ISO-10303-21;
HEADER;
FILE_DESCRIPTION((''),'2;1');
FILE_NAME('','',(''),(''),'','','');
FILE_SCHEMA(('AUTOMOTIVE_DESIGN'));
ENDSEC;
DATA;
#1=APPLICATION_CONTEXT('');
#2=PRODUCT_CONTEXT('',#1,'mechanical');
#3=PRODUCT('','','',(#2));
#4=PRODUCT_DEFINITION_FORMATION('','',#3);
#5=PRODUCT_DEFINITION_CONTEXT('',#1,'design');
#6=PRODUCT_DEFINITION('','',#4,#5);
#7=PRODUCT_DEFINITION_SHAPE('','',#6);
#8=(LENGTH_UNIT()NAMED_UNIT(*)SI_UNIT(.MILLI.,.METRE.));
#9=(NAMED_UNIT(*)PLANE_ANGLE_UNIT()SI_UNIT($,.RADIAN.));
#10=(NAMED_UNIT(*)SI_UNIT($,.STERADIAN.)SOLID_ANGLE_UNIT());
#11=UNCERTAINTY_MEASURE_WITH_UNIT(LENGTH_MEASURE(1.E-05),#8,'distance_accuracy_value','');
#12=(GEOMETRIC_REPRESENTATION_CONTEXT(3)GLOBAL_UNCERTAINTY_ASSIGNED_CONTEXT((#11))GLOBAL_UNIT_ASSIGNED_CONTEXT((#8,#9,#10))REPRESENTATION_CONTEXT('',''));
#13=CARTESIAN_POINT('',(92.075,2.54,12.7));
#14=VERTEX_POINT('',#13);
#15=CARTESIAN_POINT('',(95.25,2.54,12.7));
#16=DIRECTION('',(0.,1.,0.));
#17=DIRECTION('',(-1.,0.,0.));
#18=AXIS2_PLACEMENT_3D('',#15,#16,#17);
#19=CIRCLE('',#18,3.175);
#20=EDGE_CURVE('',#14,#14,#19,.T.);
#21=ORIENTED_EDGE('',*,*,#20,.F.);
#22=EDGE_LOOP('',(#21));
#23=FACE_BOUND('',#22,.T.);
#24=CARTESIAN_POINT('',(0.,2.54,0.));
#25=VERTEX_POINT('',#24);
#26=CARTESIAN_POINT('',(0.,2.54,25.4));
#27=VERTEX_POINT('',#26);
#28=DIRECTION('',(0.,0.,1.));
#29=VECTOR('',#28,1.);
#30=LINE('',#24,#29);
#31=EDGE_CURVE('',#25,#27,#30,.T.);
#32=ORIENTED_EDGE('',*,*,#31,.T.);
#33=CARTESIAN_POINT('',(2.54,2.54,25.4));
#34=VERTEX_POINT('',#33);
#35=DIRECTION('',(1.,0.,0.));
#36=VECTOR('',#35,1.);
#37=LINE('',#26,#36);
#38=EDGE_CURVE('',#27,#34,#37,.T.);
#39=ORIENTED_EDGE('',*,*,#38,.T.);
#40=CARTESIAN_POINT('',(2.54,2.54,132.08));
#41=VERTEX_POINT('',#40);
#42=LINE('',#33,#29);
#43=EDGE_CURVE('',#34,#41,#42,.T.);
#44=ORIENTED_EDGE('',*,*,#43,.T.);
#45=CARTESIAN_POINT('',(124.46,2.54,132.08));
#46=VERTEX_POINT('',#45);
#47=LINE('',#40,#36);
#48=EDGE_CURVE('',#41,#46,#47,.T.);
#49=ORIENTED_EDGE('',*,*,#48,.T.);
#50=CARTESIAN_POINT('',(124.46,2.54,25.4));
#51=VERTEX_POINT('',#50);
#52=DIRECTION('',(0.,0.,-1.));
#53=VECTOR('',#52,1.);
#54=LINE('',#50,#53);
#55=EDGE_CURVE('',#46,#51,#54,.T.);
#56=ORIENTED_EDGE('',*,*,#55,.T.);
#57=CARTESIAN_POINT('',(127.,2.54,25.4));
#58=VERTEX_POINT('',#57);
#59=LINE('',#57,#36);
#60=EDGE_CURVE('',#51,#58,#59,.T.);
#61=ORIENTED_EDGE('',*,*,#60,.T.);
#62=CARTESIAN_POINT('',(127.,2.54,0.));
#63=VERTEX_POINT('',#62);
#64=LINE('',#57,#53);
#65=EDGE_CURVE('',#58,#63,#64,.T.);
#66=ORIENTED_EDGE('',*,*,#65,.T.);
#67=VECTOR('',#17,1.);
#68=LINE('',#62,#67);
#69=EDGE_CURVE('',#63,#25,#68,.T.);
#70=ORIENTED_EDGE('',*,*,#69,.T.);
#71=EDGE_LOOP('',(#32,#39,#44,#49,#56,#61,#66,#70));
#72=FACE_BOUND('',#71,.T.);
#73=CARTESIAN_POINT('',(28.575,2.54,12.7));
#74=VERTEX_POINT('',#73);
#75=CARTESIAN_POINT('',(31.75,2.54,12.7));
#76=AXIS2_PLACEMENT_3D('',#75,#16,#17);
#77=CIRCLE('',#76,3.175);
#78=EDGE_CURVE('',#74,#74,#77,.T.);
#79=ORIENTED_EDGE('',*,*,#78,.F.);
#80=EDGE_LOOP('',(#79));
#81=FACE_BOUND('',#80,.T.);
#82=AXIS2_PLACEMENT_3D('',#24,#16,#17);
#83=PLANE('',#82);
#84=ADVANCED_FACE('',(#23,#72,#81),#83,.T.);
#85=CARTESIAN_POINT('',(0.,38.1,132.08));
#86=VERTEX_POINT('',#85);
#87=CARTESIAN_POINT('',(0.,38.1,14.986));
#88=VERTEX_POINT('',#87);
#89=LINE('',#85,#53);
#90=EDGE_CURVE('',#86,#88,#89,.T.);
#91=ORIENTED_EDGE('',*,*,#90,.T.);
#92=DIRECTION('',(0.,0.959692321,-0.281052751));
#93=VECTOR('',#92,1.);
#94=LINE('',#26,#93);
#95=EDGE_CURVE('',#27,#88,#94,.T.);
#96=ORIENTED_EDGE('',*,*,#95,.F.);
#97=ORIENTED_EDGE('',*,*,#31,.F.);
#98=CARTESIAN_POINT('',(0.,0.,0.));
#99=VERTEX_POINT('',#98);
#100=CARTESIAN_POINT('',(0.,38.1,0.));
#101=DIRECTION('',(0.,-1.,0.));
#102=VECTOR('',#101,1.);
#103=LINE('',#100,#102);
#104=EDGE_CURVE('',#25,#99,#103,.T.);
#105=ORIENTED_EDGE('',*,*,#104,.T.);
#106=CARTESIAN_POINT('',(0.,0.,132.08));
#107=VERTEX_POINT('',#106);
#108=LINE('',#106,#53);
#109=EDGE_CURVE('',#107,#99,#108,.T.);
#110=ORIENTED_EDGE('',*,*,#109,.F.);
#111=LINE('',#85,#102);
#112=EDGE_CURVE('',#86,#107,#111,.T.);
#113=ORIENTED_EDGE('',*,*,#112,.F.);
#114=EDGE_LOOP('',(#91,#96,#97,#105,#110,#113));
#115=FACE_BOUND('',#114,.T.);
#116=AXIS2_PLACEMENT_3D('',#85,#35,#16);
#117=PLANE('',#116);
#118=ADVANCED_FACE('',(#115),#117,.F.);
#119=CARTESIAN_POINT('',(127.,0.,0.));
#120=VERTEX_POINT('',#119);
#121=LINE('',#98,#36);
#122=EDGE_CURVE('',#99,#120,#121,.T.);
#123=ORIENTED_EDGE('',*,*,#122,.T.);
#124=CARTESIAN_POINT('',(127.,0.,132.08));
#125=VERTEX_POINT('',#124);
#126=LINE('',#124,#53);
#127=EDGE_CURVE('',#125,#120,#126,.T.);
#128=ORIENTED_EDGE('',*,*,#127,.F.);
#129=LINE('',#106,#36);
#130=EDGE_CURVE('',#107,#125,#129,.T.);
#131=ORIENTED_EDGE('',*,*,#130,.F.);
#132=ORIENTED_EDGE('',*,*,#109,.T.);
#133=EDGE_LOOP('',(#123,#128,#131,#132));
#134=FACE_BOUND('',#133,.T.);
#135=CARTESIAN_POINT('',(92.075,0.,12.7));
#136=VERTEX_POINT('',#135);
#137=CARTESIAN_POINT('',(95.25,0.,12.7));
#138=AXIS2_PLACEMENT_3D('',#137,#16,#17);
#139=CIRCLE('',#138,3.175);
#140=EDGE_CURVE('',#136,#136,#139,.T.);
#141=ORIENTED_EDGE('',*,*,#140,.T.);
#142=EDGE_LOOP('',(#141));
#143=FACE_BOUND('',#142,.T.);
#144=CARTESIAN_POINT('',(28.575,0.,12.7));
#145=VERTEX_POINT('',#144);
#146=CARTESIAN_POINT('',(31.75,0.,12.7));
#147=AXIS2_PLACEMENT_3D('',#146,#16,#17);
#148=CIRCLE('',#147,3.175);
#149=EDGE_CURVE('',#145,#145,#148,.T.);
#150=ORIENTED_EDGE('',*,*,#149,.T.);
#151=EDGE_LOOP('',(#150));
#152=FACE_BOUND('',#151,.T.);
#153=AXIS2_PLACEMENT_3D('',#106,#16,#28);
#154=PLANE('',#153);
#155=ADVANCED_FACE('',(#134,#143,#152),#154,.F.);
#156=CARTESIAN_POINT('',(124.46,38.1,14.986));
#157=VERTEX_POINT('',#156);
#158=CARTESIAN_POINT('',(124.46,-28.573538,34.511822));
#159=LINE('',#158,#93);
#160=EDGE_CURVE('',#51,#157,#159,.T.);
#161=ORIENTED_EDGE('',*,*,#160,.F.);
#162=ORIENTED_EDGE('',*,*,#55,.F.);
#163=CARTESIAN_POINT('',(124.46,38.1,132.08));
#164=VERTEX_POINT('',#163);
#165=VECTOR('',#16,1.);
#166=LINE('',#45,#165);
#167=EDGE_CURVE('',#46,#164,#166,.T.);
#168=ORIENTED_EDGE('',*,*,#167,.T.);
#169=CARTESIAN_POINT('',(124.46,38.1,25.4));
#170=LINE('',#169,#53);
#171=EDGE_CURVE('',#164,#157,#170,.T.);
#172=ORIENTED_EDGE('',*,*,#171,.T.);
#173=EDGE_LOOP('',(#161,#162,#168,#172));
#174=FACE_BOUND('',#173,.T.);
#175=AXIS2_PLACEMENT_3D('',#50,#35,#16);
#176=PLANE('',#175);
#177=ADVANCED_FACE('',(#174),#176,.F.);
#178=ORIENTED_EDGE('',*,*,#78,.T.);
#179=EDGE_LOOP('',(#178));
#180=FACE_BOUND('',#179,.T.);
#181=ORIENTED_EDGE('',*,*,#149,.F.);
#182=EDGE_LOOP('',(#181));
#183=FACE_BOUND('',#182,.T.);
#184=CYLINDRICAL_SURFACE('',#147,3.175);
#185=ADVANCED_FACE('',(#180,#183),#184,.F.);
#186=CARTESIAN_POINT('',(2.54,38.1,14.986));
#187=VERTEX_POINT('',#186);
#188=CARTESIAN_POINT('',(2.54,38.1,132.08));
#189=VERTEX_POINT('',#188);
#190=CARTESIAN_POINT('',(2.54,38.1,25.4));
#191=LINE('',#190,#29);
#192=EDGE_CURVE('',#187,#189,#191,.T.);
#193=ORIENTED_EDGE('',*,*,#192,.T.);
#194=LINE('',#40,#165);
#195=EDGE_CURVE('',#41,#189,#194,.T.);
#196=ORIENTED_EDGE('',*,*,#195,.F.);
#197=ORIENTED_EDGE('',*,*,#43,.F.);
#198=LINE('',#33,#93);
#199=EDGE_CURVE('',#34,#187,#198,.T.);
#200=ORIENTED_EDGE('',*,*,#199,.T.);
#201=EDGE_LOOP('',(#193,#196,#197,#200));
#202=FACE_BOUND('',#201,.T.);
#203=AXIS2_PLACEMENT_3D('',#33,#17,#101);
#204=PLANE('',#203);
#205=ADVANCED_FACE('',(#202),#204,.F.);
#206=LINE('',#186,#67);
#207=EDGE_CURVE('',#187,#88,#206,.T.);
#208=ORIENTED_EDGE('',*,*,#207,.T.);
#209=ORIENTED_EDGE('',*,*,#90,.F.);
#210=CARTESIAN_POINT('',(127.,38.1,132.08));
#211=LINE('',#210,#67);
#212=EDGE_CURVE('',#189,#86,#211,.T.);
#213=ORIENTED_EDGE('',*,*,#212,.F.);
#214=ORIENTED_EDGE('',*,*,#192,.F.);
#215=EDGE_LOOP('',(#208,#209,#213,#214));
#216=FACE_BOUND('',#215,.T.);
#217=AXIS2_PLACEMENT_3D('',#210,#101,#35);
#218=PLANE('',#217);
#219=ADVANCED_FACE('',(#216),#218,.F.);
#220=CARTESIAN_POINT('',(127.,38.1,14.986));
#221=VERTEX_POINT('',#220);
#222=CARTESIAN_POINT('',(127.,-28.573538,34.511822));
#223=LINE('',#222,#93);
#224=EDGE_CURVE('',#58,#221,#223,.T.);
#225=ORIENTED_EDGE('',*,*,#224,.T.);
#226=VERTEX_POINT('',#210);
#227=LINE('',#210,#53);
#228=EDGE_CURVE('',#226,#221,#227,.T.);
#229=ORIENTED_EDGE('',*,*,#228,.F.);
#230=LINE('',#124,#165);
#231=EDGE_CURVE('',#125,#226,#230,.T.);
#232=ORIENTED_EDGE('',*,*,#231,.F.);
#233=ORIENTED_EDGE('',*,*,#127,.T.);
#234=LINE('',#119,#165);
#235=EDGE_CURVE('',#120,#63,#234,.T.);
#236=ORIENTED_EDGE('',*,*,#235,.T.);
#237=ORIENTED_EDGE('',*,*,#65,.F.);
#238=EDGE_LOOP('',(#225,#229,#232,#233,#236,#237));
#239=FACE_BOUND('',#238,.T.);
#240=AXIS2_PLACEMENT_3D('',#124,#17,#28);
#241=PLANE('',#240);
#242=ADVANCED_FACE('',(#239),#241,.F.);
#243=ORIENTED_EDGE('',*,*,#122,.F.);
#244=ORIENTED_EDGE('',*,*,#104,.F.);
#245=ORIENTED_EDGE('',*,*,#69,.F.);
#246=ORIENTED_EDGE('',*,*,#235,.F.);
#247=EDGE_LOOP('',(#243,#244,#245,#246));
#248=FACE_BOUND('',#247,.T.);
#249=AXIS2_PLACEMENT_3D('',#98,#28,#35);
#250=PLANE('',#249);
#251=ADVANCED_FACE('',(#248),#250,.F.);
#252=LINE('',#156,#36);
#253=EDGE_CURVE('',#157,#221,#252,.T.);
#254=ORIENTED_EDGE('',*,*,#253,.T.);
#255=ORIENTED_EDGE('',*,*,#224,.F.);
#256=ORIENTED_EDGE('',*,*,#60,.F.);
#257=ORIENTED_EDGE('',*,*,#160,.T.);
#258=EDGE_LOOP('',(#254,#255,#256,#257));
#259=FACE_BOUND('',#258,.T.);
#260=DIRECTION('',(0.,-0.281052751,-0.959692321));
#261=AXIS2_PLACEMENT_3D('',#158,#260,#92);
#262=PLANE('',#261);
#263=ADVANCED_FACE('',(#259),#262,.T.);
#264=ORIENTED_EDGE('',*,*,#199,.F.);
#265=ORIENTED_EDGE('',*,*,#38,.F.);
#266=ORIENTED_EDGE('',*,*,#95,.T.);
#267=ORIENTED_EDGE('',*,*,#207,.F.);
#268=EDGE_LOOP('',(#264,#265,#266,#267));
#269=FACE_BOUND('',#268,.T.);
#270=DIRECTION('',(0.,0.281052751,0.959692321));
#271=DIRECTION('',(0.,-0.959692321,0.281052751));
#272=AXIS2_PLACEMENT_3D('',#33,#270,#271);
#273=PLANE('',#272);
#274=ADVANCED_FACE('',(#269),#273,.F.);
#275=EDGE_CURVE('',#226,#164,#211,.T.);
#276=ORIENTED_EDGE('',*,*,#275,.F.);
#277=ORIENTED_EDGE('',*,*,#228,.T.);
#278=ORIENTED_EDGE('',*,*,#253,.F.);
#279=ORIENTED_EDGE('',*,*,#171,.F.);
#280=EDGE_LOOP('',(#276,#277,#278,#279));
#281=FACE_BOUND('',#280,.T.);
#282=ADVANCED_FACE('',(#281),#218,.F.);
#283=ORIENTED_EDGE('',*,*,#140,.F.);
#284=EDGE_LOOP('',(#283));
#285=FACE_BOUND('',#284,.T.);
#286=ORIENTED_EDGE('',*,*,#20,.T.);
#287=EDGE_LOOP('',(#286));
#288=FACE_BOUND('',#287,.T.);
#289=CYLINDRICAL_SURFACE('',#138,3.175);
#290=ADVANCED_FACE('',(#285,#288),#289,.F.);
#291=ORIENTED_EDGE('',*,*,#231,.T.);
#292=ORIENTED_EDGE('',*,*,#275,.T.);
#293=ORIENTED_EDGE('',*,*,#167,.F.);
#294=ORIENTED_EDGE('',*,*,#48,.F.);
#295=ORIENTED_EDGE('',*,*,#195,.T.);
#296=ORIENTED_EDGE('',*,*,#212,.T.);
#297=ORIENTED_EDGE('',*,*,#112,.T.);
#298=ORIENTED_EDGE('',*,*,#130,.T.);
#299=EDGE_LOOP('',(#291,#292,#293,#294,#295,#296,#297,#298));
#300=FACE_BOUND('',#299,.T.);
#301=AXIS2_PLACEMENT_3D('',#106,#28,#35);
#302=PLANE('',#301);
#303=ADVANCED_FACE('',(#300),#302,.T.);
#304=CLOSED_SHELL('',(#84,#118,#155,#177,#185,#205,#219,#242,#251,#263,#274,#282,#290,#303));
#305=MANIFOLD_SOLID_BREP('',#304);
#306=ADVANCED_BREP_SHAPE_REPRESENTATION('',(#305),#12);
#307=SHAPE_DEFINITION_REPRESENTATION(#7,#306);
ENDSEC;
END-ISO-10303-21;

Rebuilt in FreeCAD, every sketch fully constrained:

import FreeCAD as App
import Part
import Sketcher

V = App.Vector
Q = App.Units.Quantity

doc = App.newDocument("Part")
body = doc.addObject("PartDesign::Body", "Body")

# Sketch on XY plane
sketch1 = body.newObject("Sketcher::SketchObject", "Sketch")
sketch1.AttachmentSupport = (doc.getObject("XY_Plane"), [""])
sketch1.MapMode = "FlatFace"
sketch1.addGeometry(Part.LineSegment(V(0, 38.1, 0), V(0, 0, 0)), False)
sketch1.addGeometry(Part.LineSegment(V(0, 0, 0), V(127, 0, 0)), False)
sketch1.addGeometry(Part.LineSegment(V(127, 0, 0), V(127, 38.1, 0)), False)
sketch1.addGeometry(Part.LineSegment(V(127, 38.1, 0), V(0, 38.1, 0)), False)
sketch1.addConstraint(Sketcher.Constraint("Coincident", 0, 2, 1, 1))
sketch1.addConstraint(Sketcher.Constraint("Coincident", 1, 2, 2, 1))
sketch1.addConstraint(Sketcher.Constraint("Coincident", 2, 2, 3, 1))
sketch1.addConstraint(Sketcher.Constraint("Coincident", 3, 2, 0, 1))
sketch1.addConstraint(Sketcher.Constraint("Vertical", 0))
sketch1.addConstraint(Sketcher.Constraint("Horizontal", 1))
sketch1.addConstraint(Sketcher.Constraint("Vertical", 2))
sketch1.addConstraint(Sketcher.Constraint("Horizontal", 3))
sketch1.addConstraint(Sketcher.Constraint("Coincident", 0, 2, -1, 1))
sketch1.addConstraint(Sketcher.Constraint("DistanceX", 1, 1, 1, 2, Q("5 in")))
sketch1.addConstraint(Sketcher.Constraint("DistanceY", 0, 2, 0, 1, Q("1.5 in")))
pad1 = body.newObject("PartDesign::Pad", "Pad")
pad1.Profile = sketch1
pad1.Length = Q("5.2 in")

# Sketch on XZ plane
sketch2 = body.newObject("Sketcher::SketchObject", "Sketch001")
sketch2.AttachmentSupport = (doc.getObject("XZ_Plane"), [""])
sketch2.MapMode = "FlatFace"
sketch2.AttachmentOffset = App.Placement(V(0, 0, -1.5 * 25.4), App.Rotation())
sketch2.addGeometry(Part.LineSegment(V(0, 25.4, 0), V(2.54, 25.4, 0)), False)
sketch2.addGeometry(Part.LineSegment(V(2.54, 25.4, 0), V(2.54, 132.08, 0)), False)
sketch2.addGeometry(Part.LineSegment(V(2.54, 132.08, 0), V(124.46, 132.08, 0)), False)
sketch2.addGeometry(Part.LineSegment(V(124.46, 132.08, 0), V(124.46, 25.4, 0)), False)
sketch2.addGeometry(Part.LineSegment(V(124.46, 25.4, 0), V(127, 25.4, 0)), False)
sketch2.addGeometry(Part.LineSegment(V(127, 25.4, 0), V(127, 0, 0)), False)
sketch2.addGeometry(Part.LineSegment(V(127, 0, 0), V(0, 0, 0)), False)
sketch2.addGeometry(Part.LineSegment(V(0, 0, 0), V(0, 25.4, 0)), False)
sketch2.addConstraint(Sketcher.Constraint("Coincident", 0, 2, 1, 1))
sketch2.addConstraint(Sketcher.Constraint("Coincident", 1, 2, 2, 1))
sketch2.addConstraint(Sketcher.Constraint("Coincident", 2, 2, 3, 1))
sketch2.addConstraint(Sketcher.Constraint("Coincident", 3, 2, 4, 1))
sketch2.addConstraint(Sketcher.Constraint("Coincident", 4, 2, 5, 1))
sketch2.addConstraint(Sketcher.Constraint("Coincident", 5, 2, 6, 1))
sketch2.addConstraint(Sketcher.Constraint("Coincident", 6, 2, 7, 1))
sketch2.addConstraint(Sketcher.Constraint("Coincident", 7, 2, 0, 1))
sketch2.addConstraint(Sketcher.Constraint("Horizontal", 0))
sketch2.addConstraint(Sketcher.Constraint("Vertical", 1))
sketch2.addConstraint(Sketcher.Constraint("Horizontal", 2))
sketch2.addConstraint(Sketcher.Constraint("Vertical", 3))
sketch2.addConstraint(Sketcher.Constraint("Horizontal", 4))
sketch2.addConstraint(Sketcher.Constraint("Vertical", 5))
sketch2.addConstraint(Sketcher.Constraint("Horizontal", 6))
sketch2.addConstraint(Sketcher.Constraint("Vertical", 7))
sketch2.addConstraint(Sketcher.Constraint("Coincident", 6, 2, -1, 1))
sketch2.addConstraint(Sketcher.Constraint("Horizontal", 0, 2, 3, 2))
sketch2.addConstraint(Sketcher.Constraint("Equal", 0, 4))
sketch2.addConstraint(Sketcher.Constraint("DistanceX", 6, 2, 6, 1, Q("5 in")))
sketch2.addConstraint(Sketcher.Constraint("DistanceY", 5, 2, 5, 1, Q("1 in")))
sketch2.addConstraint(Sketcher.Constraint("DistanceX", 0, 1, 0, 2, Q("0.1 in")))
sketch2.addConstraint(Sketcher.Constraint("DistanceY", 1, 1, 1, 2, Q("4.2 in")))
pocket1 = body.newObject("PartDesign::Pocket", "Pocket")
pocket1.Profile = sketch2
pocket1.Length = Q("1.4 in")
pocket1.Reversed = True

# Sketch on YZ plane
sketch3 = body.newObject("Sketcher::SketchObject", "Sketch002")
sketch3.AttachmentSupport = (doc.getObject("YZ_Plane"), [""])
sketch3.MapMode = "FlatFace"
sketch3.addGeometry(Part.LineSegment(V(2.54, 25.4, 0), V(38.1, 14.986, 0)), False)
sketch3.addGeometry(Part.LineSegment(V(38.1, 14.986, 0), V(38.1, 25.4, 0)), False)
sketch3.addGeometry(Part.LineSegment(V(38.1, 25.4, 0), V(2.54, 25.4, 0)), False)
sketch3.addConstraint(Sketcher.Constraint("Coincident", 0, 2, 1, 1))
sketch3.addConstraint(Sketcher.Constraint("Coincident", 1, 2, 2, 1))
sketch3.addConstraint(Sketcher.Constraint("Coincident", 2, 2, 0, 1))
sketch3.addConstraint(Sketcher.Constraint("Vertical", 1))
sketch3.addConstraint(Sketcher.Constraint("Horizontal", 2))
sketch3.addConstraint(Sketcher.Constraint("DistanceX", 2, 2, 2, 1, Q("1.4 in")))
sketch3.addConstraint(Sketcher.Constraint("DistanceY", -1, 1, 1, 2, Q("1 in")))
sketch3.addConstraint(Sketcher.Constraint("DistanceY", 1, 1, 1, 2, Q("0.41 in")))
sketch3.addConstraint(Sketcher.Constraint("DistanceX", -1, 1, 0, 2, Q("1.5 in")))
pad2 = body.newObject("PartDesign::Pad", "Pad001")
pad2.Profile = sketch3
pad2.Length = Q("0.1 in")

# Sketch on YZ plane
sketch4 = body.newObject("Sketcher::SketchObject", "Sketch003")
sketch4.AttachmentSupport = (doc.getObject("YZ_Plane"), [""])
sketch4.MapMode = "FlatFace"
sketch4.AttachmentOffset = App.Placement(V(0, 0, 5 * 25.4), App.Rotation())
sketch4.addGeometry(Part.LineSegment(V(2.54, 25.4, 0), V(38.1, 14.986, 0)), False)
sketch4.addGeometry(Part.LineSegment(V(38.1, 14.986, 0), V(38.1, 25.4, 0)), False)
sketch4.addGeometry(Part.LineSegment(V(38.1, 25.4, 0), V(2.54, 25.4, 0)), False)
sketch4.addConstraint(Sketcher.Constraint("Coincident", 0, 2, 1, 1))
sketch4.addConstraint(Sketcher.Constraint("Coincident", 1, 2, 2, 1))
sketch4.addConstraint(Sketcher.Constraint("Coincident", 2, 2, 0, 1))
sketch4.addConstraint(Sketcher.Constraint("Vertical", 1))
sketch4.addConstraint(Sketcher.Constraint("Horizontal", 2))
sketch4.addConstraint(Sketcher.Constraint("DistanceX", 2, 2, 2, 1, Q("1.4 in")))
sketch4.addConstraint(Sketcher.Constraint("DistanceY", -1, 1, 1, 2, Q("1 in")))
sketch4.addConstraint(Sketcher.Constraint("DistanceY", 1, 1, 1, 2, Q("0.41 in")))
sketch4.addConstraint(Sketcher.Constraint("DistanceX", -1, 1, 0, 2, Q("1.5 in")))
pad3 = body.newObject("PartDesign::Pad", "Pad002")
pad3.Profile = sketch4
pad3.Length = Q("0.1 in")
pad3.Reversed = True

# Sketch on XZ plane
sketch5 = body.newObject("Sketcher::SketchObject", "Sketch004")
sketch5.AttachmentSupport = (doc.getObject("XZ_Plane"), [""])
sketch5.MapMode = "FlatFace"
sketch5.AttachmentOffset = App.Placement(V(0, 0, -0.1 * 25.4), App.Rotation())
sketch5.addGeometry(Part.Circle(V(31.75, 12.7, 0), V(0, 0, 1), 3.175), False)
sketch5.addGeometry(Part.Circle(V(95.25, 12.7, 0), V(0, 0, 1), 3.175), False)
sketch5.addConstraint(Sketcher.Constraint("Equal", 0, 1))
sketch5.addConstraint(Sketcher.Constraint("Horizontal", 0, 3, 1, 3))
sketch5.addConstraint(Sketcher.Constraint("Diameter", 0, Q("0.25 in")))
sketch5.addConstraint(Sketcher.Constraint("DistanceY", -1, 1, 0, 3, Q("0.5 in")))
sketch5.addConstraint(Sketcher.Constraint("DistanceX", 0, 3, 1, 3, Q("2.5 in")))
sketch5.addConstraint(Sketcher.Constraint("DistanceX", -1, 1, 0, 3, Q("1.25 in")))
pocket2 = body.newObject("PartDesign::Pocket", "Pocket001")
pocket2.Profile = sketch5
pocket2.Length = Q("0.1 in")
pocket2.Reversed = True

doc.recompute()
